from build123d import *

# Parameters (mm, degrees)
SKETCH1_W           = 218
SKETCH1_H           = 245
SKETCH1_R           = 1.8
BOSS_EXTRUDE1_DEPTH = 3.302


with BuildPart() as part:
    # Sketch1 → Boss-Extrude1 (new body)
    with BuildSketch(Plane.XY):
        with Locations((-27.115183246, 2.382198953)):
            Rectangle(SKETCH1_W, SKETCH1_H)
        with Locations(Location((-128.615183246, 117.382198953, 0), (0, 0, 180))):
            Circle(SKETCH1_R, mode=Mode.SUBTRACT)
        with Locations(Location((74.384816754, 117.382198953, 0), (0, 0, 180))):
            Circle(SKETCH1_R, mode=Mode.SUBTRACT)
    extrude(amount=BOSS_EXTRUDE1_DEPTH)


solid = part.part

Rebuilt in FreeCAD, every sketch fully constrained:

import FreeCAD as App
import Part
import Sketcher

V = App.Vector


def add_polygon(sketch, points):
    """Adds a closed chain of lines whose ends are joined by coincident constraints."""
    first, n = sketch.GeometryCount, len(points)
    for a, b in zip(points, points[1:] + points[:1]):
        sketch.addGeometry(Part.LineSegment(App.Vector(*a, 0), App.Vector(*b, 0)), False)
    for i in range(n):
        sketch.addConstraint(Sketcher.Constraint("Coincident", first + i, 2, first + (i + 1) % n, 1))

doc = App.newDocument("Part")
params = doc.addObject("Spreadsheet::Sheet", "Params")
for row, (alias, value) in enumerate([
    ("sketch1_diameter", "3.6 mm"),
    ("sketch1_width", "218 mm"),
    ("sketch1_height", "245 mm"),
    ("pad1_length", "3.302 mm"),
], start=1):
    params.set(f"A{row}", alias)
    params.set(f"B{row}", "=" + value)
    params.setAlias(f"B{row}", alias)

body = doc.addObject("PartDesign::Body", "Body")

# Sketch on XY plane
sketch1 = doc.addObject("Sketcher::SketchObject", "Sketch")
body.addObject(sketch1)
sketch1.AttachmentSupport = (doc.XY_Plane, [""])
sketch1.MapMode = "FlatFace"
add_polygon(sketch1, [(-136.1, 124.9), (-136.1, -120.1), (81.9, -120.1), (81.9, 124.9)])  # lines 0-3
sketch1.addGeometry(Part.Circle(V(-128.6, 117.4, 0), V(0, 0, 1), 1.8), False)  # 4
sketch1.addGeometry(Part.Circle(V(74.4, 117.4, 0), V(0, 0, 1), 1.8), False)  # 5
sketch1.addConstraint([
    Sketcher.Constraint("Vertical", 0),
    Sketcher.Constraint("Horizontal", 1),
    Sketcher.Constraint("Vertical", 2),
    Sketcher.Constraint("Horizontal", 3),
    Sketcher.Constraint("Equal", 4, 5),
    Sketcher.Constraint("Horizontal", 4, 3, 5, 3),
    Sketcher.Constraint("Diameter", 4, 3.6),
    Sketcher.Constraint("DistanceX", 1, 1, 1, 2, 218.0),
    Sketcher.Constraint("DistanceY", 0, 2, 0, 1, 245.0),
    Sketcher.Constraint("DistanceX", 4, 3, 5, 3, 203.0),
    Sketcher.Constraint("DistanceX", 0, 2, 4, 3, 7.5),
    Sketcher.Constraint("DistanceY", 0, 2, 4, 3, 237.5),
    Sketcher.Constraint("DistanceY", -1, 1, 4, 3, 117.382199),
    Sketcher.Constraint("DistanceX", 4, 3, -1, 1, 128.615183),
])
sketch1.setExpression("Constraints[10]", "Params.sketch1_diameter")
sketch1.setExpression("Constraints[11]", "Params.sketch1_width")
sketch1.setExpression("Constraints[12]", "Params.sketch1_height")
pad1 = doc.addObject("PartDesign::Pad", "Pad")
body.addObject(pad1)
pad1.Profile = sketch1
pad1.setExpression("Length", "Params.pad1_length")

doc.recompute()
